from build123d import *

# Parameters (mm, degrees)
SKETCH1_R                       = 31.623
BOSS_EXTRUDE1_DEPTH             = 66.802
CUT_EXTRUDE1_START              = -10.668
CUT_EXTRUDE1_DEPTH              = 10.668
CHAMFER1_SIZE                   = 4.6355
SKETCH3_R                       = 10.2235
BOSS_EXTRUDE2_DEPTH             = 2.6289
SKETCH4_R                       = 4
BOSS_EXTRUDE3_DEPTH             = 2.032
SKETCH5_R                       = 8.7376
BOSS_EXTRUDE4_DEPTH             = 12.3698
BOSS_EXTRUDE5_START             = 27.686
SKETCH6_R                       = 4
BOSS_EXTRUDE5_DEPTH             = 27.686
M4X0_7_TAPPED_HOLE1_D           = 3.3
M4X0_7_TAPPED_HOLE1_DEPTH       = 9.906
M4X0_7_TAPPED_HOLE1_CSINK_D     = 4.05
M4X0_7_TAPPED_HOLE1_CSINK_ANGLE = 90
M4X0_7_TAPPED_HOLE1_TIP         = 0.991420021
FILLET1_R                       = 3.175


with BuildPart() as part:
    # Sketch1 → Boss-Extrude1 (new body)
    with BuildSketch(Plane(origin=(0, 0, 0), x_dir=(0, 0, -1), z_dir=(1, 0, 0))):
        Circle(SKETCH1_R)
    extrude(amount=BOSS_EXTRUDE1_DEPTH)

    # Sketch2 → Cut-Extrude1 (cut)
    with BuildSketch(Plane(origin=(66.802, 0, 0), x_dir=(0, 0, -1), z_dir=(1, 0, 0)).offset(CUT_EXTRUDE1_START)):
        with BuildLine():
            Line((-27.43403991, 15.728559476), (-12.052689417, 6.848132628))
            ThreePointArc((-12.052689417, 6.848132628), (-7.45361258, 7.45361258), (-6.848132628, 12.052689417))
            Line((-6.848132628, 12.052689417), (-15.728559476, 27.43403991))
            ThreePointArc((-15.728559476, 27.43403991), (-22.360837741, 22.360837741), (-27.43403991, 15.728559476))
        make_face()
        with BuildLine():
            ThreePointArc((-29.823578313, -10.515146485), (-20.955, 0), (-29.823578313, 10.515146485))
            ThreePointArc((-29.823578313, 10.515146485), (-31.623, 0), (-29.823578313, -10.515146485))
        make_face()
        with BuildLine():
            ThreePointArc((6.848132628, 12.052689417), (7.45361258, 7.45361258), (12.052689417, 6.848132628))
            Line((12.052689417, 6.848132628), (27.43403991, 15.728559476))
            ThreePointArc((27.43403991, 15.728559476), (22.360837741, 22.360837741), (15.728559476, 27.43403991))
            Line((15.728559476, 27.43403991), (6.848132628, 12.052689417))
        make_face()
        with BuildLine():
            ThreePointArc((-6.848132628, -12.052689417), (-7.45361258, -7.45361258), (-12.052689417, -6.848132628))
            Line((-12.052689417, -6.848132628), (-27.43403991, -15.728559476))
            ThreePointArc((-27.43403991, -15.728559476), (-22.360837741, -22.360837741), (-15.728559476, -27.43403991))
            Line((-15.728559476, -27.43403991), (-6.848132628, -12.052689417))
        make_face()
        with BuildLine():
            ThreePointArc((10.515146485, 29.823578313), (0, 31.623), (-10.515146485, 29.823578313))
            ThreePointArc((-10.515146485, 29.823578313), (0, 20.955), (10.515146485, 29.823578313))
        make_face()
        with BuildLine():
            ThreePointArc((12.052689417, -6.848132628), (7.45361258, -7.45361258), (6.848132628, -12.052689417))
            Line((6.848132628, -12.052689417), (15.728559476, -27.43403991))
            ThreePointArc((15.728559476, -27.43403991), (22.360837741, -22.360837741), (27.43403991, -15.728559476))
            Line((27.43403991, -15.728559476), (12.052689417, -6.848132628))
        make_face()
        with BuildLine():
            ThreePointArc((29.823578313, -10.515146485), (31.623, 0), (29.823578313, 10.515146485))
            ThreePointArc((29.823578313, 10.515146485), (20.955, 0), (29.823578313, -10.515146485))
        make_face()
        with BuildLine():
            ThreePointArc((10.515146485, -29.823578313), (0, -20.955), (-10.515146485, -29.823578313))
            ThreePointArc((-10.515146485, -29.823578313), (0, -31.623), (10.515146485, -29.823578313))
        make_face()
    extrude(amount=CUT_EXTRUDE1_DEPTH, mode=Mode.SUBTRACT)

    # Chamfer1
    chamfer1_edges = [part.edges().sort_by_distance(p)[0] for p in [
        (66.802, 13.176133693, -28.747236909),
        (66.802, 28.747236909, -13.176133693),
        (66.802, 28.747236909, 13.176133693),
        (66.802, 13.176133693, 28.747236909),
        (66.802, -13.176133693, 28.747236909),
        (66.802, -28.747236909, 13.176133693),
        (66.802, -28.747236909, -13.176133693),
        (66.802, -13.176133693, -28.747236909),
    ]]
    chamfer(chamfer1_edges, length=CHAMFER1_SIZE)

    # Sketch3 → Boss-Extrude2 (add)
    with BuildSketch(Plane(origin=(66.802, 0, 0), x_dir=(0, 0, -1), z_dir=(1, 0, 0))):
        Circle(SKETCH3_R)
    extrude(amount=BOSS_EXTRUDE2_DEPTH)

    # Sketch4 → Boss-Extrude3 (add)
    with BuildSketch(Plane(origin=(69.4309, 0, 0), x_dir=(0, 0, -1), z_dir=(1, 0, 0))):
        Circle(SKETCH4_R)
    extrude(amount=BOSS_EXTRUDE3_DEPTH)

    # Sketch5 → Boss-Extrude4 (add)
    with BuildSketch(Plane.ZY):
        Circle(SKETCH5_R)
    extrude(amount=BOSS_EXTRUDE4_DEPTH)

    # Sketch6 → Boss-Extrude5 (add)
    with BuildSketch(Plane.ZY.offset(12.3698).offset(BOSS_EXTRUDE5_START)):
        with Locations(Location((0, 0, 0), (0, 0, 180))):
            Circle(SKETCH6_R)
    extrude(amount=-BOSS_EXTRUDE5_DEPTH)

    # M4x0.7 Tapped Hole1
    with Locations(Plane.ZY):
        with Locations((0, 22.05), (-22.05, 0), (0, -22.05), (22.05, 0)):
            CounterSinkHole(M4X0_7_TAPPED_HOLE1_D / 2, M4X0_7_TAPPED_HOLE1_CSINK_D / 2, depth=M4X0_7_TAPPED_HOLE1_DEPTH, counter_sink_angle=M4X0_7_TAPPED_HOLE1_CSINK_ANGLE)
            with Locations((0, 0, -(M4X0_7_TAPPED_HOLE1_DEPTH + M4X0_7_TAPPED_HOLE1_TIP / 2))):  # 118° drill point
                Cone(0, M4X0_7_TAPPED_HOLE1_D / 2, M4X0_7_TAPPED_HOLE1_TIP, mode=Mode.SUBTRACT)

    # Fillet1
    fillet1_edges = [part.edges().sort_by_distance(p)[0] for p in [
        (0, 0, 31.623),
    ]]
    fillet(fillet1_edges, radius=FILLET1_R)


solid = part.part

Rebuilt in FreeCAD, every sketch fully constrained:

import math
import FreeCAD as App
import Part
import Sketcher

V = App.Vector
Q = App.Units.Quantity


def edges_at(feature, points):
    """Names of the edges that pass closest to the given points."""
    edges = feature.Shape.Edges
    near = lambda p: min(range(len(edges)), key=lambda i: edges[i].distToShape(Part.Vertex(*p))[0])
    return sorted({f"Edge{near(p) + 1}" for p in points})

doc = App.newDocument("Part")
body = doc.addObject("PartDesign::Body", "Body")

# Sketch on YZ plane
sketch1 = doc.addObject("Sketcher::SketchObject", "Sketch")
body.addObject(sketch1)
sketch1.AttachmentSupport = (doc.YZ_Plane, [""])
sketch1.MapMode = "FlatFace"
sketch1.addGeometry(Part.Circle(V(0, 0, 0), V(0, 0, 1), 31.623), False)
sketch1.addConstraint([
    Sketcher.Constraint("Coincident", 0, 3, -1, 1),
    Sketcher.Constraint("Diameter", 0, Q("2.49 in")),
])
pad1 = doc.addObject("PartDesign::Pad", "Pad")
body.addObject(pad1)
pad1.Profile = sketch1
pad1.Length = Q("2.63 in")

# Sketch on YZ plane
sketch2 = doc.addObject("Sketcher::SketchObject", "Sketch001")
body.addObject(sketch2)
sketch2.AttachmentSupport = (doc.YZ_Plane, [""])
sketch2.MapMode = "FlatFace"
sketch2.AttachmentOffset = App.Placement(V(0, 0, 2.21 * 25.4), App.Rotation())
sketch2.addGeometry([
    Part.LineSegment(V(15.728559, 27.43404, 0), V(6.848133, 12.052689, 0)),  # 0
    Part.ArcOfCircle(Part.Circle(V(10.147689, 10.147689, 0), V(0, 0, 1), 3.81), math.radians(150), math.radians(300)),  # 1
    Part.LineSegment(V(12.052689, 6.848133, 0), V(27.43404, 15.728559, 0)),  # 2
    Part.ArcOfCircle(Part.Circle(V(0, 0, 0), V(0, 0, 1), 31.623), math.radians(29.826629), math.radians(60.173371)),  # 3
    Part.ArcOfCircle(Part.Circle(V(0, 31.623, 0), V(0, 0, 1), 10.668), math.radians(-170.289228), math.radians(-9.710772)),  # 4
    Part.ArcOfCircle(Part.Circle(V(0, 0, 0), V(0, 0, 1), 31.623), math.radians(70.578456), math.radians(109.421544)),  # 5
    Part.ArcOfCircle(Part.Circle(V(10.147689, -10.147689, 0), V(0, 0, 1), 3.81), math.radians(60), math.radians(210)),  # 6
    Part.LineSegment(V(6.848133, -12.052689, 0), V(15.728559, -27.43404, 0)),  # 7
    Part.ArcOfCircle(Part.Circle(V(0, 0, 0), V(0, 0, 1), 31.623), math.radians(-60.173371), math.radians(-29.826629)),  # 8
    Part.LineSegment(V(27.43404, -15.728559, 0), V(12.052689, -6.848133, 0)),  # 9
    Part.ArcOfCircle(Part.Circle(V(-10.147689, 10.147689, 0), V(0, 0, 1), 3.81), math.radians(-120), math.radians(30)),  # 10
    Part.LineSegment(V(-6.848133, 12.052689, 0), V(-15.728559, 27.43404, 0)),  # 11
    Part.ArcOfCircle(Part.Circle(V(0, 0, 0), V(0, 0, 1), 31.623), math.radians(119.826629), math.radians(150.173371)),  # 12
    Part.LineSegment(V(-27.43404, 15.728559, 0), V(-12.052689, 6.848133, 0)),  # 13
    Part.ArcOfCircle(Part.Circle(V(0, 0, 0), V(0, 0, 1), 31.623), math.radians(-19.421544), math.radians(19.421544)),  # 14
    Part.ArcOfCircle(Part.Circle(V(31.623, 0, 0), V(0, 0, 1), 10.668), math.radians(99.710772), math.radians(260.289228)),  # 15
    Part.ArcOfCircle(Part.Circle(V(-10.147689, -10.147689, 0), V(0, 0, 1), 3.81), math.radians(-30), math.radians(120)),  # 16
    Part.LineSegment(V(-12.052689, -6.848133, 0), V(-27.43404, -15.728559, 0)),  # 17
    Part.ArcOfCircle(Part.Circle(V(0, 0, 0), V(0, 0, 1), 31.623), math.radians(-150.173371), math.radians(-119.826629)),  # 18
    Part.LineSegment(V(-15.728559, -27.43404, 0), V(-6.848133, -12.052689, 0)),  # 19
    Part.ArcOfCircle(Part.Circle(V(0, 0, 0), V(0, 0, 1), 31.623), math.radians(-109.421544), math.radians(-70.578456)),  # 20
    Part.ArcOfCircle(Part.Circle(V(0, -31.623, 0), V(0, 0, 1), 10.668), math.radians(9.710772), math.radians(170.289228)),  # 21
    Part.ArcOfCircle(Part.Circle(V(-31.623, 0, 0), V(0, 0, 1), 10.668), math.radians(-80.289228), math.radians(80.289228)),  # 22
    Part.ArcOfCircle(Part.Circle(V(0, 0, 0), V(0, 0, 1), 31.623), math.radians(160.578456), math.radians(199.421544)),  # 23
], False)
sketch2.addConstraint([
    Sketcher.Constraint("Tangent", 0, 2, 1, 1),
    Sketcher.Constraint("Tangent", 1, 2, 2, 1),
    Sketcher.Constraint("Coincident", 2, 2, 3, 1),
    Sketcher.Constraint("Coincident", 3, 2, 0, 1),
    Sketcher.Constraint("Coincident", 4, 1, 5, 2),
    Sketcher.Constraint("Coincident", 5, 1, 4, 2),
    Sketcher.Constraint("Tangent", 6, 2, 7, 1),
    Sketcher.Constraint("Coincident", 7, 2, 8, 1),
    Sketcher.Constraint("Coincident", 8, 2, 9, 1),
    Sketcher.Constraint("Tangent", 9, 2, 6, 1),
    Sketcher.Constraint("Tangent", 10, 2, 11, 1),
    Sketcher.Constraint("Coincident", 11, 2, 12, 1),
    Sketcher.Constraint("Coincident", 12, 2, 13, 1),
    Sketcher.Constraint("Tangent", 13, 2, 10, 1),
    Sketcher.Constraint("Coincident", 14, 1, 15, 2),
    Sketcher.Constraint("Coincident", 15, 1, 14, 2),
    Sketcher.Constraint("Tangent", 16, 2, 17, 1),
    Sketcher.Constraint("Coincident", 17, 2, 18, 1),
    Sketcher.Constraint("Coincident", 18, 2, 19, 1),
    Sketcher.Constraint("Tangent", 19, 2, 16, 1),
    Sketcher.Constraint("Coincident", 20, 1, 21, 2),
    Sketcher.Constraint("Coincident", 21, 1, 20, 2),
    Sketcher.Constraint("Coincident", 22, 1, 23, 2),
    Sketcher.Constraint("Coincident", 23, 1, 22, 2),
    Sketcher.Constraint("Coincident", 3, 3, -1, 1),
    Sketcher.Constraint("Coincident", 5, 3, -1, 1),
    Sketcher.Constraint("Coincident", 8, 3, -1, 1),
    Sketcher.Constraint("Coincident", 12, 3, -1, 1),
    Sketcher.Constraint("Coincident", 14, 3, -1, 1),
    Sketcher.Constraint("Coincident", 18, 3, -1, 1),
    Sketcher.Constraint("Coincident", 20, 3, -1, 1),
    Sketcher.Constraint("Coincident", 23, 3, -1, 1),
    Sketcher.Constraint("Equal", 3, 5),
    Sketcher.Constraint("Equal", 1, 6),
    Sketcher.Constraint("Equal", 5, 8),
    Sketcher.Constraint("Equal", 6, 10),
    Sketcher.Constraint("Equal", 8, 12),
    Sketcher.Constraint("Equal", 12, 14),
    Sketcher.Constraint("Equal", 4, 15),
    Sketcher.Constraint("Equal", 10, 16),
    Sketcher.Constraint("Equal", 14, 18),
    Sketcher.Constraint("Equal", 18, 20),
    Sketcher.Constraint("Equal", 15, 21),
    Sketcher.Constraint("Equal", 21, 22),
    Sketcher.Constraint("Equal", 20, 23),
    Sketcher.Constraint("Symmetric", 6, 3, 10, 3, -1, 1),
    Sketcher.Constraint("Symmetric", 1, 3, 16, 3, -1, 1),
    Sketcher.Constraint("Symmetric", 4, 3, 21, 3, -1, 1),
    Sketcher.Constraint("Symmetric", 15, 3, 22, 3, -1, 1),
    Sketcher.Constraint("Symmetric", 1, 3, 10, 3, -2),
    Sketcher.Constraint("PointOnObject", 4, 3, -2),
    Sketcher.Constraint("PointOnObject", 15, 3, -1),
    Sketcher.Constraint("Perpendicular", 2, 7),
    Sketcher.Constraint("Perpendicular", 0, 9),
    Sketcher.Constraint("Parallel", 7, 11),
    Sketcher.Constraint("Parallel", 9, 13),
    Sketcher.Constraint("Perpendicular", 11, 17),
    Sketcher.Constraint("Perpendicular", 13, 19),
    Sketcher.Constraint("Horizontal", 0, 2, 10, 2),
    Sketcher.Constraint("Equal", 0, 2),
    Sketcher.Constraint("Radius", 1, Q("0.15 in")),
    Sketcher.Constraint("Radius", 4, Q("0.42 in")),
    Sketcher.Constraint("Angle", 0, Q("-120 deg")),
    Sketcher.Constraint("Radius", 3, Q("1.245 in")),
    Sketcher.Constraint("DistanceY", -1, 1, 4, 3, Q("1.245 in")),
    Sketcher.Constraint("DistanceX", -1, 1, 15, 3, Q("1.245 in")),
    Sketcher.Constraint("DistanceX", -1, 1, 1, 3, 10.147689),
])
pocket1 = doc.addObject("PartDesign::Pocket", "Pocket")
body.addObject(pocket1)
pocket1.Profile = sketch2
pocket1.Length = Q("0.42 in")
pocket1.Reversed = True
doc.recompute()

chamfer = doc.addObject("PartDesign::Chamfer", "Chamfer")
body.addObject(chamfer)
chamfer.Base = (pocket1, edges_at(pocket1, [
    (66.802, 13.176, -28.747),
    (66.802, 28.747, -13.176),
    (66.802, 28.747, 13.176),
    (66.802, 13.176, 28.747),
    (66.802, -13.176, 28.747),
    (66.802, -28.747, 13.176),
    (66.802, -28.747, -13.176),
    (66.802, -13.176, -28.747),
]))
chamfer.Size = Q("0.1825 in")

# Sketch on YZ plane
sketch3 = doc.addObject("Sketcher::SketchObject", "Sketch002")
body.addObject(sketch3)
sketch3.AttachmentSupport = (doc.YZ_Plane, [""])
sketch3.MapMode = "FlatFace"
sketch3.AttachmentOffset = App.Placement(V(0, 0, 2.63 * 25.4), App.Rotation())
sketch3.addGeometry(Part.Circle(V(0, 0, 0), V(0, 0, 1), 10.2235), False)
sketch3.addConstraint([
    Sketcher.Constraint("Coincident", 0, 3, -1, 1),
    Sketcher.Constraint("Diameter", 0, Q("0.805 in")),
])
pad2 = doc.addObject("PartDesign::Pad", "Pad001")
body.addObject(pad2)
pad2.Profile = sketch3
pad2.Length = Q("0.1035 in")

# Sketch on YZ plane
sketch4 = doc.addObject("Sketcher::SketchObject", "Sketch003")
body.addObject(sketch4)
sketch4.AttachmentSupport = (doc.YZ_Plane, [""])
sketch4.MapMode = "FlatFace"
sketch4.AttachmentOffset = App.Placement(V(0, 0, 2.7335 * 25.4), App.Rotation())
sketch4.addGeometry(Part.Circle(V(0, 0, 0), V(0, 0, 1), 4), False)
sketch4.addConstraint([
    Sketcher.Constraint("Coincident", 0, 3, -1, 1),
    Sketcher.Constraint("Diameter", 0, 8.0),
])
pad3 = doc.addObject("PartDesign::Pad", "Pad002")
body.addObject(pad3)
pad3.Profile = sketch4
pad3.Length = Q("0.08 in")

# Sketch on YZ plane
sketch5 = doc.addObject("Sketcher::SketchObject", "Sketch004")
body.addObject(sketch5)
sketch5.AttachmentSupport = (doc.YZ_Plane, [""])
sketch5.MapMode = "FlatFace"
sketch5.addGeometry(Part.Circle(V(0, 0, 0), V(0, 0, 1), 8.7376), False)
sketch5.addConstraint([
    Sketcher.Constraint("Coincident", 0, 3, -1, 1),
    Sketcher.Constraint("Diameter", 0, Q("0.688 in")),
])
pad4 = doc.addObject("PartDesign::Pad", "Pad003")
body.addObject(pad4)
pad4.Profile = sketch5
pad4.Length = Q("0.487 in")
pad4.Reversed = True

# Sketch on YZ plane
sketch6 = doc.addObject("Sketcher::SketchObject", "Sketch005")
body.addObject(sketch6)
sketch6.AttachmentSupport = (doc.YZ_Plane, [""])
sketch6.MapMode = "FlatFace"
sketch6.AttachmentOffset = App.Placement(V(0, 0, -1.577 * 25.4), App.Rotation())
sketch6.addGeometry(Part.Circle(V(0, 0, 0), V(0, 0, 1), 4), False)
sketch6.addConstraint([
    Sketcher.Constraint("Coincident", 0, 3, -1, 1),
    Sketcher.Constraint("Diameter", 0, 8.0),
])
pad5 = doc.addObject("PartDesign::Pad", "Pad004")
body.addObject(pad5)
pad5.Profile = sketch6
pad5.Length = Q("1.09 in")

# Sketch on YZ plane
sketch7 = doc.addObject("Sketcher::SketchObject", "Sketch006")
body.addObject(sketch7)
sketch7.AttachmentSupport = (doc.YZ_Plane, [""])
sketch7.MapMode = "FlatFace"
sketch7.addGeometry([
    Part.Circle(V(22.05, 0, 0), V(0, 0, 1), 1.65),
    Part.Circle(V(0, -22.05, 0), V(0, 0, 1), 1.65),
    Part.Circle(V(-22.05, 0, 0), V(0, 0, 1), 1.65),
    Part.Circle(V(0, 22.05, 0), V(0, 0, 1), 1.65),
], False)
sketch7.addConstraint([
    Sketcher.Constraint("Equal", 0, 1),
    Sketcher.Constraint("Equal", 1, 2),
    Sketcher.Constraint("Equal", 2, 3),
    Sketcher.Constraint("Symmetric", 0, 3, 2, 3, -1, 1),
    Sketcher.Constraint("Symmetric", 1, 3, 3, 3, -1, 1),
    Sketcher.Constraint("PointOnObject", 0, 3, -1),
    Sketcher.Constraint("PointOnObject", 1, 3, -2),
    Sketcher.Constraint("Diameter", 0, 3.3),
    Sketcher.Constraint("DistanceX", -1, 1, 0, 3, 22.05),
    Sketcher.Constraint("DistanceY", 1, 3, -1, 1, 22.05),
])
doc.recompute()
hole = doc.addObject("PartDesign::Hole", "Hole")
body.addObject(hole)
hole.Profile = sketch7
hole.ThreadType = "None"
hole.Diameter = 3.3
hole.DepthType = "Dimension"
hole.Depth = Q("0.39 in")
hole.DrillPoint = "Angled"
hole.DrillPointAngle = 118
hole.HoleCutType = "Countersink"
hole.HoleCutDiameter = 4.05
hole.HoleCutCountersinkAngle = 90
hole.Reversed = True
doc.recompute()

fillet = doc.addObject("PartDesign::Fillet", "Fillet")
body.addObject(fillet)
fillet.Base = (hole, edges_at(hole, [(0, 0, 31.623)]))
fillet.Radius = Q("0.125 in")

doc.recompute()
